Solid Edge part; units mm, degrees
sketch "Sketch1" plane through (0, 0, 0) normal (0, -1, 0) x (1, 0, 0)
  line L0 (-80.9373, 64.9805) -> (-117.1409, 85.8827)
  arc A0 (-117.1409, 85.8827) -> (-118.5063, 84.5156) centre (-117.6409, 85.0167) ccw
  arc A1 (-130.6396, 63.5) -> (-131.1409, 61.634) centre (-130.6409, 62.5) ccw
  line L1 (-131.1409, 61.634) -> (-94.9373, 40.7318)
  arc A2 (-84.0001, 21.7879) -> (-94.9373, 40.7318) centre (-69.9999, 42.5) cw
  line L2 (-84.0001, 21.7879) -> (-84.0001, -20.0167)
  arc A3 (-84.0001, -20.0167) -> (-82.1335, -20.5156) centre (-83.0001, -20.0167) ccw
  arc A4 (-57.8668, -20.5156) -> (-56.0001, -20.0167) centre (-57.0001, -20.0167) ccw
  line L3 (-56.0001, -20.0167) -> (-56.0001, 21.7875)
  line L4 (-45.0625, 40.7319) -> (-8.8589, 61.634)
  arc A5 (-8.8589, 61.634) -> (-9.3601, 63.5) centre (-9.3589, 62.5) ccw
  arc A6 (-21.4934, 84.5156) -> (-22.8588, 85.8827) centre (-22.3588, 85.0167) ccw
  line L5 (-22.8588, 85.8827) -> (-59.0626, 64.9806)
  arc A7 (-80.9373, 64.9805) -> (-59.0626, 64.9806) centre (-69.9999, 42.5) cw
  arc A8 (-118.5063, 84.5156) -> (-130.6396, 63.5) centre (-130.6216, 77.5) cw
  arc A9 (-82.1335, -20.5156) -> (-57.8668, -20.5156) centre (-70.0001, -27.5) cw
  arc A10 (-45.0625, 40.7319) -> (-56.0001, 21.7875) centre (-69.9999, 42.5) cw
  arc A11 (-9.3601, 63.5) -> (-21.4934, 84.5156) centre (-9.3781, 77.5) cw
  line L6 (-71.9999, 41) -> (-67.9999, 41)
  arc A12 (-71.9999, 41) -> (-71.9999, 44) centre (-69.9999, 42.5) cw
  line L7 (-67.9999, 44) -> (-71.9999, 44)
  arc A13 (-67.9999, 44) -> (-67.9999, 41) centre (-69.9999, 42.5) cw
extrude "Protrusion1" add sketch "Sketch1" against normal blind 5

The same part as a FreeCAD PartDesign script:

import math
import FreeCAD as App
import Part
import Sketcher

V = App.Vector
Q = App.Units.Quantity

doc = App.newDocument("Part")
body = doc.addObject("PartDesign::Body", "Body")

sketch1 = doc.addObject("Sketcher::SketchObject", "Sketch")
body.addObject(sketch1)
sketch1.AttachmentSupport = (doc.XZ_Plane, [""])
sketch1.MapMode = "FlatFace"
sketch1.addGeometry(Part.ArcOfCircle(Part.Circle(V(-70, 42.5, 0), V(0, 0, 1), 25), math.radians(64), math.radians(116)), False)
sketch1.addGeometry(Part.LineSegment(V(-80.9, 65, 0), V(-117.1, 85.9, 0)), False)
sketch1.addGeometry(Part.ArcOfCircle(Part.Circle(V(-117.6, 85, 0), V(0, 0, 1), 1), math.radians(60), math.radians(210)), False)
sketch1.addGeometry(Part.ArcOfCircle(Part.Circle(V(-130.6, 77.5, 0), V(0, 0, 1), 14), math.radians(-90), math.radians(30)), False)
sketch1.addGeometry(Part.ArcOfCircle(Part.Circle(V(-130.6, 62.5, 0), V(0, 0, 1), 1), math.radians(90), math.radians(240)), False)
sketch1.addGeometry(Part.LineSegment(V(-131.1, 61.6, 0), V(-94.9, 40.7, 0)), False)
sketch1.addGeometry(Part.ArcOfCircle(Part.Circle(V(-70, 42.5, 0), V(0, 0, 1), 25), math.radians(-176), math.radians(-124)), False)
sketch1.addGeometry(Part.LineSegment(V(-84, 21.8, 0), V(-84, -20, 0)), False)
sketch1.addGeometry(Part.ArcOfCircle(Part.Circle(V(-83, -20, 0), V(0, 0, 1), 1), math.radians(180), math.radians(330)), False)
sketch1.addGeometry(Part.ArcOfCircle(Part.Circle(V(-70, -27.5, 0), V(0, 0, 1), 14), math.radians(30), math.radians(150)), False)
sketch1.addGeometry(Part.ArcOfCircle(Part.Circle(V(-57, -20, 0), V(0, 0, 1), 1), math.radians(-150), math.radians(0)), False)
sketch1.addGeometry(Part.LineSegment(V(-56, -20, 0), V(-56, 21.8, 0)), False)
sketch1.addGeometry(Part.ArcOfCircle(Part.Circle(V(-70, 42.5, 0), V(0, 0, 1), 25), math.radians(-56), math.radians(-4)), False)
sketch1.addGeometry(Part.LineSegment(V(-45.1, 40.7, 0), V(-8.9, 61.6, 0)), False)
sketch1.addGeometry(Part.ArcOfCircle(Part.Circle(V(-9.4, 62.5, 0), V(0, 0, 1), 1), math.radians(-60), math.radians(90)), False)
sketch1.addGeometry(Part.ArcOfCircle(Part.Circle(V(-9.4, 77.5, 0), V(0, 0, 1), 14), math.radians(150), math.radians(270)), False)
sketch1.addGeometry(Part.ArcOfCircle(Part.Circle(V(-22.4, 85, 0), V(0, 0, 1), 1), math.radians(-30), math.radians(120)), False)
sketch1.addGeometry(Part.LineSegment(V(-22.9, 85.9, 0), V(-59.1, 65, 0)), False)
sketch1.addGeometry(Part.LineSegment(V(-68, 41, 0), V(-72, 41, 0)), False)
sketch1.addGeometry(Part.ArcOfCircle(Part.Circle(V(-70, 42.5, 0), V(0, 0, 1), 2.5), math.radians(143), math.radians(217)), False)
sketch1.addGeometry(Part.LineSegment(V(-72, 44, 0), V(-68, 44, 0)), False)
sketch1.addGeometry(Part.ArcOfCircle(Part.Circle(V(-70, 42.5, 0), V(0, 0, 1), 2.5), math.radians(-37), math.radians(37)), False)
sketch1.addConstraint(Sketcher.Constraint("Coincident", 0, 2, 1, 1))
sketch1.addConstraint(Sketcher.Constraint("Tangent", 1, 2, 2, 1))
sketch1.addConstraint(Sketcher.Constraint("Tangent", 2, 2, 3, 2))
sketch1.addConstraint(Sketcher.Constraint("Tangent", 3, 1, 4, 1))
sketch1.addConstraint(Sketcher.Constraint("Tangent", 4, 2, 5, 1))
sketch1.addConstraint(Sketcher.Constraint("Coincident", 5, 2, 6, 1))
sketch1.addConstraint(Sketcher.Constraint("Coincident", 6, 2, 7, 1))
sketch1.addConstraint(Sketcher.Constraint("Tangent", 7, 2, 8, 1))
sketch1.addConstraint(Sketcher.Constraint("Tangent", 8, 2, 9, 2))
sketch1.addConstraint(Sketcher.Constraint("Tangent", 9, 1, 10, 1))
sketch1.addConstraint(Sketcher.Constraint("Tangent", 10, 2, 11, 1))
sketch1.addConstraint(Sketcher.Constraint("Coincident", 11, 2, 12, 1))
sketch1.addConstraint(Sketcher.Constraint("Coincident", 12, 2, 13, 1))
sketch1.addConstraint(Sketcher.Constraint("Tangent", 13, 2, 14, 1))
sketch1.addConstraint(Sketcher.Constraint("Tangent", 14, 2, 15, 2))
sketch1.addConstraint(Sketcher.Constraint("Tangent", 15, 1, 16, 1))
sketch1.addConstraint(Sketcher.Constraint("Tangent", 16, 2, 17, 1))
sketch1.addConstraint(Sketcher.Constraint("Coincident", 17, 2, 0, 1))
sketch1.addConstraint(Sketcher.Constraint("Coincident", 18, 2, 19, 2))
sketch1.addConstraint(Sketcher.Constraint("Coincident", 19, 1, 20, 1))
sketch1.addConstraint(Sketcher.Constraint("Coincident", 20, 2, 21, 2))
sketch1.addConstraint(Sketcher.Constraint("Coincident", 21, 1, 18, 1))
sketch1.addConstraint(Sketcher.Constraint("Vertical", 7))
sketch1.addConstraint(Sketcher.Constraint("Vertical", 11))
sketch1.addConstraint(Sketcher.Constraint("Horizontal", 18))
sketch1.addConstraint(Sketcher.Constraint("Horizontal", 20))
sketch1.addConstraint(Sketcher.Constraint("Coincident", 6, 3, 0, 3))
sketch1.addConstraint(Sketcher.Constraint("Coincident", 12, 3, 0, 3))
sketch1.addConstraint(Sketcher.Constraint("Coincident", 19, 3, 0, 3))
sketch1.addConstraint(Sketcher.Constraint("Coincident", 21, 3, 0, 3))
sketch1.addConstraint(Sketcher.Constraint("Equal", 2, 4))
sketch1.addConstraint(Sketcher.Constraint("Equal", 0, 6))
sketch1.addConstraint(Sketcher.Constraint("Equal", 4, 8))
sketch1.addConstraint(Sketcher.Constraint("Equal", 3, 9))
sketch1.addConstraint(Sketcher.Constraint("Equal", 8, 10))
sketch1.addConstraint(Sketcher.Constraint("Equal", 6, 12))
sketch1.addConstraint(Sketcher.Constraint("Equal", 10, 14))
sketch1.addConstraint(Sketcher.Constraint("Equal", 9, 15))
sketch1.addConstraint(Sketcher.Constraint("Equal", 14, 16))
sketch1.addConstraint(Sketcher.Constraint("Equal", 19, 21))
sketch1.addConstraint(Sketcher.Constraint("Parallel", 1, 5))
sketch1.addConstraint(Sketcher.Constraint("Parallel", 13, 17))
sketch1.addConstraint(Sketcher.Constraint("Horizontal", 8, 3, 10, 3))
sketch1.addConstraint(Sketcher.Constraint("Horizontal", 4, 3, 14, 3))
sketch1.addConstraint(Sketcher.Constraint("Horizontal", 2, 3, 16, 3))
sketch1.addConstraint(Sketcher.Constraint("Horizontal", 5, 2, 12, 2))
sketch1.addConstraint(Sketcher.Constraint("Horizontal", 4, 2, 13, 2))
sketch1.addConstraint(Sketcher.Constraint("Horizontal", 0, 2, 17, 2))
sketch1.addConstraint(Sketcher.Constraint("Vertical", 18, 2, 19, 1))
sketch1.addConstraint(Sketcher.Constraint("Equal", 1, 5))
sketch1.addConstraint(Sketcher.Constraint("Radius", 0, 25.0))
sketch1.addConstraint(Sketcher.Constraint("Radius", 2, 1.0))
sketch1.addConstraint(Sketcher.Constraint("Radius", 3, 14.0))
sketch1.addConstraint(Sketcher.Constraint("Radius", 19, 2.5))
sketch1.addConstraint(Sketcher.Constraint("DistanceX", 18, 2, 18, 1, 4.0))
sketch1.addConstraint(Sketcher.Constraint("Angle", 1, Q("150 deg")))
sketch1.addConstraint(Sketcher.Constraint("DistanceX", 0, 3, -1, 1, 70.0))
sketch1.addConstraint(Sketcher.Constraint("DistanceX", 8, 3, -1, 1, 83.0))
sketch1.addConstraint(Sketcher.Constraint("DistanceX", 9, 3, -1, 1, 70.0))
sketch1.addConstraint(Sketcher.Constraint("DistanceY", -1, 1, 18, 2, 41.0))
sketch1.addConstraint(Sketcher.Constraint("DistanceY", 0, 3, 3, 3, 35.0))
sketch1.addConstraint(Sketcher.Constraint("DistanceX", 4, 3, 2, 3, 13.0))
sketch1.addConstraint(Sketcher.Constraint("DistanceY", 9, 3, 0, 3, 70.0))
sketch1.addConstraint(Sketcher.Constraint("DistanceX", 14, 2, -1, 1, 9.36))
pad1 = doc.addObject("PartDesign::Pad", "Pad")
body.addObject(pad1)
pad1.Profile = sketch1
pad1.Length = 5
pad1.Reversed = True

doc.recompute()
